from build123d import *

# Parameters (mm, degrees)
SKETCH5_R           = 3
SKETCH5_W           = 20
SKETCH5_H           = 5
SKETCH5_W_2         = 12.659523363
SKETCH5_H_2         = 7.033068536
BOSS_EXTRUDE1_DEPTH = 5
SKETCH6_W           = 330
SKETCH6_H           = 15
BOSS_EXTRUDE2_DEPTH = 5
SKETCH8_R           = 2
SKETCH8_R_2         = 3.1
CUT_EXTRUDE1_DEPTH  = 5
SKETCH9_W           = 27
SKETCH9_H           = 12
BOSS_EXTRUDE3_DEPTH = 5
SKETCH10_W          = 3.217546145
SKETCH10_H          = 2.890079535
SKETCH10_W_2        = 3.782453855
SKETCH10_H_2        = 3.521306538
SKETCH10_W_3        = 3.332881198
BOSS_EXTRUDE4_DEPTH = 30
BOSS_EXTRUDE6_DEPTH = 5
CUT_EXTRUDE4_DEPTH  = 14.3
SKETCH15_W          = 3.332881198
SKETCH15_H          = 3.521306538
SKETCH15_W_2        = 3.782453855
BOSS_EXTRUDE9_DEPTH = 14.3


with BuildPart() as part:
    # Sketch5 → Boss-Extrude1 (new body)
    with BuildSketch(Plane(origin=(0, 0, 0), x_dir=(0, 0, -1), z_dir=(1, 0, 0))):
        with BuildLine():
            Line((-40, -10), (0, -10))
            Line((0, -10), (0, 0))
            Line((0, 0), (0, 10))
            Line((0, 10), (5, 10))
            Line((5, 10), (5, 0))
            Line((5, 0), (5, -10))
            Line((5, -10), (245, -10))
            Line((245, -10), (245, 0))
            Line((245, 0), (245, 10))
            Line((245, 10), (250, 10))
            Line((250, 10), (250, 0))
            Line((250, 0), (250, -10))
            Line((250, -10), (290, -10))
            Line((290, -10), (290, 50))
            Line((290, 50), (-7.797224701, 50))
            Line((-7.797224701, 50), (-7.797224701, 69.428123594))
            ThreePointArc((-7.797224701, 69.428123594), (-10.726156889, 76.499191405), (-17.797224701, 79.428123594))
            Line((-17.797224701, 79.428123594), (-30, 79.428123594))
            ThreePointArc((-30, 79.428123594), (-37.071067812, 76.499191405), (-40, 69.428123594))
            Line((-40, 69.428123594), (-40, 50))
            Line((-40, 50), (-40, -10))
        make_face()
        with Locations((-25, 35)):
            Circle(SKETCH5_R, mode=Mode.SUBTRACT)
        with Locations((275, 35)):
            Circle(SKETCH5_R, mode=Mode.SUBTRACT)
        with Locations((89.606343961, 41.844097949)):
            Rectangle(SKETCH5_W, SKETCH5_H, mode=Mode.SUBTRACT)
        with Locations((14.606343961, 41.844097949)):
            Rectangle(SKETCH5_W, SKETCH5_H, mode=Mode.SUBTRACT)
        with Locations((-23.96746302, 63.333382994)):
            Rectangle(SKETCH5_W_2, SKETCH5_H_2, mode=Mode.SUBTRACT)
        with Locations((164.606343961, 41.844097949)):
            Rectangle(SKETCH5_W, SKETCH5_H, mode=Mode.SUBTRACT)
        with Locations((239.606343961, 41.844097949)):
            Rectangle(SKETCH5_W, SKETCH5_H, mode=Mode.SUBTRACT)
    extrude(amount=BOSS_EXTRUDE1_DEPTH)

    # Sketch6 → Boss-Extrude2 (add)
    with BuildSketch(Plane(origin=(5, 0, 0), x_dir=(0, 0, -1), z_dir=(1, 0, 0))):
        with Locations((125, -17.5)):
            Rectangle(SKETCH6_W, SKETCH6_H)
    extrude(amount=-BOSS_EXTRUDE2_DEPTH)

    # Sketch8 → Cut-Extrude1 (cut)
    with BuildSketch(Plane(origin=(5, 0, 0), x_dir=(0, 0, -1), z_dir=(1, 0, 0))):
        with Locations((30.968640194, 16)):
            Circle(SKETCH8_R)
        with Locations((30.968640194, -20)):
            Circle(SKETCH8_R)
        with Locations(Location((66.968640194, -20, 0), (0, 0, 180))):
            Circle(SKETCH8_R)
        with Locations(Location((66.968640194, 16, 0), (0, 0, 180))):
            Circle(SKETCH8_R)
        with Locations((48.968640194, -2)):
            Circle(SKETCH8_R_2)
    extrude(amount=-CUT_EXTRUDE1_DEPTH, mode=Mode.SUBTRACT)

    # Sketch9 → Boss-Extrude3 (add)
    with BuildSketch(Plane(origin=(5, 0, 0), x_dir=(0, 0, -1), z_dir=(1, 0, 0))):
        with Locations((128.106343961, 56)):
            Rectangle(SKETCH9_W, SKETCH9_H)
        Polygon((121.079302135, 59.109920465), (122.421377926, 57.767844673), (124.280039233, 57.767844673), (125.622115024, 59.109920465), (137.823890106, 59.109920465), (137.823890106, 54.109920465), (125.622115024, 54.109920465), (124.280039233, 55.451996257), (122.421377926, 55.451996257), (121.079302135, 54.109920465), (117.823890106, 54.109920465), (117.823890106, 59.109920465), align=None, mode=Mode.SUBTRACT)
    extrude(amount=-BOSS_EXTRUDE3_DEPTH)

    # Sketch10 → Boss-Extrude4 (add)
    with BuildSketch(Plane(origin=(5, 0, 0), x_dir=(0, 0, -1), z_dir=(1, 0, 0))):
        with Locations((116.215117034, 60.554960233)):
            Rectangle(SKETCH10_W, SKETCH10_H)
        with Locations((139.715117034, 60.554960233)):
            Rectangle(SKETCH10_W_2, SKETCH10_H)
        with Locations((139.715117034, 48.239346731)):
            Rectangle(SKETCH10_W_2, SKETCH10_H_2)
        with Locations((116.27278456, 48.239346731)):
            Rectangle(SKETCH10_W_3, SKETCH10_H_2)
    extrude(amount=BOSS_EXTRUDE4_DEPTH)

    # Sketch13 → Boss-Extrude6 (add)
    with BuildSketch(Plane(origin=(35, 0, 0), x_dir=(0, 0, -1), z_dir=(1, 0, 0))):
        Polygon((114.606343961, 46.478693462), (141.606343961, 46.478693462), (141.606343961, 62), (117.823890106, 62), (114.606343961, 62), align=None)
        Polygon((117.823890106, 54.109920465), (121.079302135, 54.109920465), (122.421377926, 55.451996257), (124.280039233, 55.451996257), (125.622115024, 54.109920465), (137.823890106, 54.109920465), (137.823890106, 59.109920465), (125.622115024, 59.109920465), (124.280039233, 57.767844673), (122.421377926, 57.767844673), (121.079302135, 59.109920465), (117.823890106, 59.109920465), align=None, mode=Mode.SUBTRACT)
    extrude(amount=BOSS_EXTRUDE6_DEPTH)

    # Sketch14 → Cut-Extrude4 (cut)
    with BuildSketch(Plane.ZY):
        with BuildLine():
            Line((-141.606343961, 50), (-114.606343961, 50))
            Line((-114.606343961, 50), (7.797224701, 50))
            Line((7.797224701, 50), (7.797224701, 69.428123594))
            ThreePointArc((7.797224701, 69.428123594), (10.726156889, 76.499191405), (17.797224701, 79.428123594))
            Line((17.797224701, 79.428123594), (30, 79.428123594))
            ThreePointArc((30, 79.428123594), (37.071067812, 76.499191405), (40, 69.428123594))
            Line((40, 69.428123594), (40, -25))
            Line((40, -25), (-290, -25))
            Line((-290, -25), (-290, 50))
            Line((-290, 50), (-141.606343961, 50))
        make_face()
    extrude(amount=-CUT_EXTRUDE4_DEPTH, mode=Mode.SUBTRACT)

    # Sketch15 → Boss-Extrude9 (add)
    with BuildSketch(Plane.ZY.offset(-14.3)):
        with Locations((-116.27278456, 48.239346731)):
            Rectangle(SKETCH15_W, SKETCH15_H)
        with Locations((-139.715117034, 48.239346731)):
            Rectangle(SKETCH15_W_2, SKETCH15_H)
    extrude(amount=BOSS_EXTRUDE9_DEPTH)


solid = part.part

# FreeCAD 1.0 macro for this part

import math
import FreeCAD as App
import Part
import Sketcher
from FreeCAD import Vector

doc = App.newDocument("Part")
body = doc.addObject("PartDesign::Body", "Body")

sketch1 = body.newObject("Sketcher::SketchObject", "Sketch")
sketch1.AttachmentSupport = (doc.getObject("YZ_Plane"), [""])
sketch1.MapMode = "FlatFace"
sketch1.addGeometry([
    Part.LineSegment(Vector(-10, 40, 0), Vector(-10, 0, 0)),
    Part.LineSegment(Vector(-10, 0, 0), Vector(10, 0, 0)),
    Part.LineSegment(Vector(10, 0, 0), Vector(10, -5, 0)),
    Part.LineSegment(Vector(10, -5, 0), Vector(-10, -5, 0)),
    Part.LineSegment(Vector(-10, -5, 0), Vector(-10, -245, 0)),
    Part.LineSegment(Vector(-10, -245, 0), Vector(10, -245, 0)),
    Part.LineSegment(Vector(10, -245, 0), Vector(10, -250, 0)),
    Part.LineSegment(Vector(10, -250, 0), Vector(-10, -250, 0)),
    Part.LineSegment(Vector(-10, -250, 0), Vector(-10, -290, 0)),
    Part.LineSegment(Vector(-10, -290, 0), Vector(50, -290, 0)),
    Part.LineSegment(Vector(50, -290, 0), Vector(50, 7.8, 0)),
    Part.LineSegment(Vector(50, 7.8, 0), Vector(69.4, 7.8, 0)),
    Part.ArcOfCircle(Part.Circle(Vector(69.4, 17.8, 0), Vector(0, 0, 1), 10), math.radians(-90), math.radians(0)),
    Part.LineSegment(Vector(79.4, 17.8, 0), Vector(79.4, 30, 0)),
    Part.ArcOfCircle(Part.Circle(Vector(69.4, 30, 0), Vector(0, 0, 1), 10), math.radians(0), math.radians(90)),
    Part.LineSegment(Vector(69.4, 40, 0), Vector(-10, 40, 0)),
    Part.Circle(Vector(35, 25, 0), Vector(0, 0, 1), 3),
    Part.LineSegment(Vector(39.3, -24.6, 0), Vector(39.3, -4.6, 0)),
    Part.LineSegment(Vector(39.3, -4.6, 0), Vector(44.3, -4.6, 0)),
    Part.LineSegment(Vector(44.3, -4.6, 0), Vector(44.3, -24.6, 0)),
    Part.LineSegment(Vector(44.3, -24.6, 0), Vector(39.3, -24.6, 0)),
    Part.LineSegment(Vector(39.3, -99.6, 0), Vector(39.3, -79.6, 0)),
    Part.LineSegment(Vector(39.3, -79.6, 0), Vector(44.3, -79.6, 0)),
    Part.LineSegment(Vector(44.3, -79.6, 0), Vector(44.3, -99.6, 0)),
    Part.LineSegment(Vector(44.3, -99.6, 0), Vector(39.3, -99.6, 0)),
    Part.Circle(Vector(35, -275, 0), Vector(0, 0, 1), 3),
    Part.LineSegment(Vector(39.3, -174.6, 0), Vector(39.3, -154.6, 0)),
    Part.LineSegment(Vector(39.3, -154.6, 0), Vector(44.3, -154.6, 0)),
    Part.LineSegment(Vector(44.3, -154.6, 0), Vector(44.3, -174.6, 0)),
    Part.LineSegment(Vector(44.3, -174.6, 0), Vector(39.3, -174.6, 0)),
    Part.LineSegment(Vector(39.3, -249.6, 0), Vector(39.3, -229.6, 0)),
    Part.LineSegment(Vector(39.3, -229.6, 0), Vector(44.3, -229.6, 0)),
    Part.LineSegment(Vector(44.3, -229.6, 0), Vector(44.3, -249.6, 0)),
    Part.LineSegment(Vector(44.3, -249.6, 0), Vector(39.3, -249.6, 0)),
    Part.LineSegment(Vector(59.8, 17.6, 0), Vector(59.8, 30.3, 0)),
    Part.LineSegment(Vector(59.8, 30.3, 0), Vector(66.8, 30.3, 0)),
    Part.LineSegment(Vector(66.8, 30.3, 0), Vector(66.8, 17.6, 0)),
    Part.LineSegment(Vector(66.8, 17.6, 0), Vector(59.8, 17.6, 0)),
], False)
sketch1.addConstraint([
    Sketcher.Constraint("Coincident", 0, 2, 1, 1),
    Sketcher.Constraint("Coincident", 1, 2, 2, 1),
    Sketcher.Constraint("Coincident", 2, 2, 3, 1),
    Sketcher.Constraint("Coincident", 3, 2, 4, 1),
    Sketcher.Constraint("Coincident", 4, 2, 5, 1),
    Sketcher.Constraint("Coincident", 5, 2, 6, 1),
    Sketcher.Constraint("Coincident", 6, 2, 7, 1),
    Sketcher.Constraint("Coincident", 7, 2, 8, 1),
    Sketcher.Constraint("Coincident", 8, 2, 9, 1),
    Sketcher.Constraint("Coincident", 9, 2, 10, 1),
    Sketcher.Constraint("Coincident", 10, 2, 11, 1),
    Sketcher.Constraint("Tangent", 11, 2, 12, 1),
    Sketcher.Constraint("Tangent", 12, 2, 13, 1),
    Sketcher.Constraint("Tangent", 13, 2, 14, 1),
    Sketcher.Constraint("Tangent", 14, 2, 15, 1),
    Sketcher.Constraint("Coincident", 15, 2, 0, 1),
    Sketcher.Constraint("Coincident", 17, 2, 18, 1),
    Sketcher.Constraint("Coincident", 18, 2, 19, 1),
    Sketcher.Constraint("Coincident", 19, 2, 20, 1),
    Sketcher.Constraint("Coincident", 20, 2, 17, 1),
    Sketcher.Constraint("Coincident", 21, 2, 22, 1),
    Sketcher.Constraint("Coincident", 22, 2, 23, 1),
    Sketcher.Constraint("Coincident", 23, 2, 24, 1),
    Sketcher.Constraint("Coincident", 24, 2, 21, 1),
    Sketcher.Constraint("Coincident", 26, 2, 27, 1),
    Sketcher.Constraint("Coincident", 27, 2, 28, 1),
    Sketcher.Constraint("Coincident", 28, 2, 29, 1),
    Sketcher.Constraint("Coincident", 29, 2, 26, 1),
    Sketcher.Constraint("Coincident", 30, 2, 31, 1),
    Sketcher.Constraint("Coincident", 31, 2, 32, 1),
    Sketcher.Constraint("Coincident", 32, 2, 33, 1),
    Sketcher.Constraint("Coincident", 33, 2, 30, 1),
    Sketcher.Constraint("Coincident", 34, 2, 35, 1),
    Sketcher.Constraint("Coincident", 35, 2, 36, 1),
    Sketcher.Constraint("Coincident", 36, 2, 37, 1),
    Sketcher.Constraint("Coincident", 37, 2, 34, 1),
    Sketcher.Constraint("Vertical", 0),
    Sketcher.Constraint("Horizontal", 1),
    Sketcher.Constraint("Vertical", 2),
    Sketcher.Constraint("Horizontal", 3),
    Sketcher.Constraint("Vertical", 4),
    Sketcher.Constraint("Horizontal", 5),
    Sketcher.Constraint("Vertical", 6),
    Sketcher.Constraint("Horizontal", 7),
    Sketcher.Constraint("Vertical", 8),
    Sketcher.Constraint("Horizontal", 9),
    Sketcher.Constraint("Vertical", 10),
    Sketcher.Constraint("Horizontal", 11),
    Sketcher.Constraint("Vertical", 13),
    Sketcher.Constraint("Horizontal", 15),
    Sketcher.Constraint("Vertical", 17),
    Sketcher.Constraint("Horizontal", 18),
    Sketcher.Constraint("Vertical", 19),
    Sketcher.Constraint("Horizontal", 20),
    Sketcher.Constraint("Vertical", 21),
    Sketcher.Constraint("Horizontal", 22),
    Sketcher.Constraint("Vertical", 23),
    Sketcher.Constraint("Horizontal", 24),
    Sketcher.Constraint("Vertical", 26),
    Sketcher.Constraint("Horizontal", 27),
    Sketcher.Constraint("Vertical", 28),
    Sketcher.Constraint("Horizontal", 29),
    Sketcher.Constraint("Vertical", 30),
    Sketcher.Constraint("Horizontal", 31),
    Sketcher.Constraint("Vertical", 32),
    Sketcher.Constraint("Horizontal", 33),
    Sketcher.Constraint("Vertical", 34),
    Sketcher.Constraint("Horizontal", 35),
    Sketcher.Constraint("Vertical", 36),
    Sketcher.Constraint("Horizontal", 37),
    Sketcher.Constraint("Equal", 12, 14),
    Sketcher.Constraint("Equal", 16, 25),
    Sketcher.Constraint("Symmetric", 0, 2, 1, 2, -1, 1),
    Sketcher.Constraint("Vertical", 16, 3, 25, 3),
    Sketcher.Constraint("Vertical", 0, 2, 3, 2),
    Sketcher.Constraint("Vertical", 2, 2, 5, 2),
    Sketcher.Constraint("Vertical", 4, 2, 7, 2),
    Sketcher.Constraint("Vertical", 20, 2, 21, 2),
    Sketcher.Constraint("Vertical", 19, 2, 22, 2),
    Sketcher.Constraint("Vertical", 24, 2, 26, 2),
    Sketcher.Constraint("Vertical", 23, 2, 27, 2),
    Sketcher.Constraint("Vertical", 29, 2, 30, 2),
    Sketcher.Constraint("Vertical", 28, 2, 31, 2),
    Sketcher.Constraint("Equal", 33, 2),
    Sketcher.Constraint("Equal", 2, 6),
    Sketcher.Constraint("Equal", 0, 8),
    Sketcher.Constraint("Equal", 7, 17),
    Sketcher.Constraint("Equal", 19, 21),
    Sketcher.Constraint("Equal", 23, 26),
    Sketcher.Constraint("Equal", 28, 30),
    Sketcher.Constraint("Diameter", 16, 6.0),
    Sketcher.Constraint("Radius", 12, 10.0),
    Sketcher.Constraint("DistanceX", 1, 1, 1, 2, 20.0),
    Sketcher.Constraint("DistanceX", 9, 1, 9, 2, 60.0),
    Sketcher.Constraint("DistanceX", 18, 1, 18, 2, 5.0),
    Sketcher.Constraint("DistanceY", 0, 2, 0, 1, 40.0),
    Sketcher.Constraint("DistanceY", 4, 2, 4, 1, 240.0),
    Sketcher.Constraint("DistanceX", -1, 1, 16, 3, 35.0),
    Sketcher.Constraint("DistanceY", -1, 1, 16, 3, 25.0),
    Sketcher.Constraint("DistanceY", 25, 3, -1, 1, 275.0),
    Sketcher.Constraint("DistanceY", 21, 2, 20, 2, 55.0),
    Sketcher.Constraint("DistanceY", 26, 2, 24, 2, 55.0),
    Sketcher.Constraint("DistanceY", 31, 2, 28, 2, 55.0),
    Sketcher.Constraint("DistanceY", 12, 3, 34, 2, 12.5),
    Sketcher.Constraint("DistanceX", 35, 1, 35, 2, 7.033069),
    Sketcher.Constraint("DistanceY", -1, 1, 36, 2, 17.637701),
    Sketcher.Constraint("DistanceX", 11, 1, 11, 2, 19.428124),
    Sketcher.Constraint("DistanceY", 10, 1, 10, 2, 297.797225),
    Sketcher.Constraint("DistanceX", -1, 1, 34, 2, 59.816849),
    Sketcher.Constraint("DistanceY", 17, 2, 10, 2, 12.403569),
    Sketcher.Constraint("DistanceX", -1, 1, 17, 2, 39.344098),
])
pad1 = body.newObject("PartDesign::Pad", "Pad")
pad1.Profile = sketch1
pad1.Length = 5

sketch2 = body.newObject("Sketcher::SketchObject", "Sketch001")
sketch2.AttachmentSupport = (doc.getObject("YZ_Plane"), [""])
sketch2.MapMode = "FlatFace"
sketch2.AttachmentOffset = App.Placement(Vector(0, 0, 5), App.Rotation())
sketch2.addGeometry([
    Part.LineSegment(Vector(-10, 40, 0), Vector(-25, 40, 0)),
    Part.LineSegment(Vector(-25, 40, 0), Vector(-25, -290, 0)),
    Part.LineSegment(Vector(-25, -290, 0), Vector(-10, -290, 0)),
    Part.LineSegment(Vector(-10, -290, 0), Vector(-10, 40, 0)),
], False)
sketch2.addConstraint([
    Sketcher.Constraint("Coincident", 0, 2, 1, 1),
    Sketcher.Constraint("Coincident", 1, 2, 2, 1),
    Sketcher.Constraint("Coincident", 2, 2, 3, 1),
    Sketcher.Constraint("Coincident", 3, 2, 0, 1),
    Sketcher.Constraint("Horizontal", 0),
    Sketcher.Constraint("Vertical", 1),
    Sketcher.Constraint("Horizontal", 2),
    Sketcher.Constraint("Vertical", 3),
    Sketcher.Constraint("DistanceX", 0, 2, 0, 1, 15.0),
    Sketcher.Constraint("DistanceY", 1, 2, 1, 1, 330.0),
    Sketcher.Constraint("DistanceX", 0, 2, -1, 1, 25.0),
    Sketcher.Constraint("DistanceY", -1, 1, 0, 2, 40.0),
])
pad2 = body.newObject("PartDesign::Pad", "Pad001")
pad2.Profile = sketch2
pad2.Length = 5
pad2.Reversed = True

sketch3 = body.newObject("Sketcher::SketchObject", "Sketch002")
sketch3.AttachmentSupport = (doc.getObject("YZ_Plane"), [""])
sketch3.MapMode = "FlatFace"
sketch3.AttachmentOffset = App.Placement(Vector(0, 0, 5), App.Rotation())
sketch3.addGeometry([
    Part.Circle(Vector(16, -31, 0), Vector(0, 0, 1), 2),
    Part.Circle(Vector(-20, -31, 0), Vector(0, 0, 1), 2),
    Part.Circle(Vector(-20, -67, 0), Vector(0, 0, 1), 2),
    Part.Circle(Vector(16, -67, 0), Vector(0, 0, 1), 2),
    Part.Circle(Vector(-2, -49, 0), Vector(0, 0, 1), 3.1),
], False)
sketch3.addConstraint([
    Sketcher.Constraint("Equal", 0, 1),
    Sketcher.Constraint("Equal", 1, 2),
    Sketcher.Constraint("Equal", 2, 3),
    Sketcher.Constraint("Horizontal", 0, 3, 1, 3),
    Sketcher.Constraint("Horizontal", 2, 3, 3, 3),
    Sketcher.Constraint("Vertical", 1, 3, 2, 3),
    Sketcher.Constraint("Vertical", 0, 3, 3, 3),
    Sketcher.Constraint("Diameter", 0, 4.0),
    Sketcher.Constraint("Diameter", 4, 6.2),
    Sketcher.Constraint("DistanceX", -1, 1, 0, 3, 16.0),
    Sketcher.Constraint("DistanceX", 1, 3, -1, 1, 20.0),
    Sketcher.Constraint("DistanceX", 4, 3, -1, 1, 2.0),
    Sketcher.Constraint("DistanceY", 2, 3, 1, 3, 36.0),
    Sketcher.Constraint("DistanceY", 2, 3, 4, 3, 18.0),
    Sketcher.Constraint("DistanceY", 0, 3, -1, 1, 30.96864),
])
pocket1 = body.newObject("PartDesign::Pocket", "Pocket")
pocket1.Profile = sketch3
pocket1.Length = 5

sketch4 = body.newObject("Sketcher::SketchObject", "Sketch003")
sketch4.AttachmentSupport = (doc.getObject("YZ_Plane"), [""])
sketch4.MapMode = "FlatFace"
sketch4.AttachmentOffset = App.Placement(Vector(0, 0, 5), App.Rotation())
sketch4.addGeometry([
    Part.LineSegment(Vector(62, -114.6, 0), Vector(50, -114.6, 0)),
    Part.LineSegment(Vector(50, -114.6, 0), Vector(50, -141.6, 0)),
    Part.LineSegment(Vector(50, -141.6, 0), Vector(62, -141.6, 0)),
    Part.LineSegment(Vector(62, -141.6, 0), Vector(62, -114.6, 0)),
    Part.LineSegment(Vector(59.1, -117.8, 0), Vector(59.1, -121.1, 0)),
    Part.LineSegment(Vector(59.1, -121.1, 0), Vector(57.8, -122.4, 0)),
    Part.LineSegment(Vector(57.8, -122.4, 0), Vector(57.8, -124.3, 0)),
    Part.LineSegment(Vector(57.8, -124.3, 0), Vector(59.1, -125.6, 0)),
    Part.LineSegment(Vector(59.1, -125.6, 0), Vector(59.1, -137.8, 0)),
    Part.LineSegment(Vector(59.1, -137.8, 0), Vector(54.1, -137.8, 0)),
    Part.LineSegment(Vector(54.1, -137.8, 0), Vector(54.1, -125.6, 0)),
    Part.LineSegment(Vector(54.1, -125.6, 0), Vector(55.5, -124.3, 0)),
    Part.LineSegment(Vector(55.5, -124.3, 0), Vector(55.5, -122.4, 0)),
    Part.LineSegment(Vector(55.5, -122.4, 0), Vector(54.1, -121.1, 0)),
    Part.LineSegment(Vector(54.1, -121.1, 0), Vector(54.1, -117.8, 0)),
    Part.LineSegment(Vector(54.1, -117.8, 0), Vector(59.1, -117.8, 0)),
], False)
sketch4.addConstraint([
    Sketcher.Constraint("Coincident", 0, 2, 1, 1),
    Sketcher.Constraint("Coincident", 1, 2, 2, 1),
    Sketcher.Constraint("Coincident", 2, 2, 3, 1),
    Sketcher.Constraint("Coincident", 3, 2, 0, 1),
    Sketcher.Constraint("Coincident", 4, 2, 5, 1),
    Sketcher.Constraint("Coincident", 5, 2, 6, 1),
    Sketcher.Constraint("Coincident", 6, 2, 7, 1),
    Sketcher.Constraint("Coincident", 7, 2, 8, 1),
    Sketcher.Constraint("Coincident", 8, 2, 9, 1),
    Sketcher.Constraint("Coincident", 9, 2, 10, 1),
    Sketcher.Constraint("Coincident", 10, 2, 11, 1),
    Sketcher.Constraint("Coincident", 11, 2, 12, 1),
    Sketcher.Constraint("Coincident", 12, 2, 13, 1),
    Sketcher.Constraint("Coincident", 13, 2, 14, 1),
    Sketcher.Constraint("Coincident", 14, 2, 15, 1),
    Sketcher.Constraint("Coincident", 15, 2, 4, 1),
    Sketcher.Constraint("Horizontal", 0),
    Sketcher.Constraint("Vertical", 1),
    Sketcher.Constraint("Horizontal", 2),
    Sketcher.Constraint("Vertical", 3),
    Sketcher.Constraint("Vertical", 4),
    Sketcher.Constraint("Vertical", 6),
    Sketcher.Constraint("Vertical", 8),
    Sketcher.Constraint("Horizontal", 9),
    Sketcher.Constraint("Vertical", 10),
    Sketcher.Constraint("Vertical", 12),
    Sketcher.Constraint("Vertical", 14),
    Sketcher.Constraint("Horizontal", 15),
    Sketcher.Constraint("Perpendicular", 5, 7),
    Sketcher.Constraint("Perpendicular", 7, 11),
    Sketcher.Constraint("Perpendicular", 11, 13),
    Sketcher.Constraint("Horizontal", 7, 2, 10, 2),
    Sketcher.Constraint("Horizontal", 6, 2, 11, 2),
    Sketcher.Constraint("Horizontal", 5, 2, 12, 2),
    Sketcher.Constraint("Horizontal", 4, 2, 13, 2),
    Sketcher.Constraint("Vertical", 4, 2, 7, 2),
    Sketcher.Constraint("Vertical", 10, 2, 13, 2),
    Sketcher.Constraint("DistanceX", 0, 2, 0, 1, 12.0),
    Sketcher.Constraint("DistanceX", 9, 2, 9, 1, 5.0),
    Sketcher.Constraint("DistanceY", 1, 2, 1, 1, 27.0),
    Sketcher.Constraint("DistanceX", -1, 1, 0, 2, 50.0),
    Sketcher.Constraint("DistanceY", 6, 2, 6, 1, 1.858661),
    Sketcher.Constraint("Distance", 5, 1.897982),
    Sketcher.Constraint("DistanceY", 4, 2, 4, 1, 3.255412),
    Sketcher.Constraint("DistanceY", 8, 2, 8, 1, 12.201775),
    Sketcher.Constraint("DistanceX", -1, 1, 4, 2, 59.10992),
    Sketcher.Constraint("DistanceY", 6, 2, -1, 1, 124.280039),
    Sketcher.Constraint("DistanceY", 4, 2, 3, 2, 6.472958),
])
pad3 = body.newObject("PartDesign::Pad", "Pad002")
pad3.Profile = sketch4
pad3.Length = 5
pad3.Reversed = True

sketch5 = body.newObject("Sketcher::SketchObject", "Sketch004")
sketch5.AttachmentSupport = (doc.getObject("YZ_Plane"), [""])
sketch5.MapMode = "FlatFace"
sketch5.AttachmentOffset = App.Placement(Vector(0, 0, 5), App.Rotation())
sketch5.addGeometry([
    Part.LineSegment(Vector(62, -114.6, 0), Vector(59.1, -114.6, 0)),
    Part.LineSegment(Vector(59.1, -114.6, 0), Vector(59.1, -117.8, 0)),
    Part.LineSegment(Vector(59.1, -117.8, 0), Vector(62, -117.8, 0)),
    Part.LineSegment(Vector(62, -117.8, 0), Vector(62, -114.6, 0)),
    Part.LineSegment(Vector(62, -137.8, 0), Vector(59.1, -137.8, 0)),
    Part.LineSegment(Vector(59.1, -137.8, 0), Vector(59.1, -141.6, 0)),
    Part.LineSegment(Vector(59.1, -141.6, 0), Vector(62, -141.6, 0)),
    Part.LineSegment(Vector(62, -141.6, 0), Vector(62, -137.8, 0)),
    Part.LineSegment(Vector(50, -137.8, 0), Vector(46.5, -137.8, 0)),
    Part.LineSegment(Vector(46.5, -137.8, 0), Vector(46.5, -141.6, 0)),
    Part.LineSegment(Vector(46.5, -141.6, 0), Vector(50, -141.6, 0)),
    Part.LineSegment(Vector(50, -141.6, 0), Vector(50, -137.8, 0)),
    Part.LineSegment(Vector(50, -114.6, 0), Vector(46.5, -114.6, 0)),
    Part.LineSegment(Vector(46.5, -114.6, 0), Vector(46.5, -117.9, 0)),
    Part.LineSegment(Vector(46.5, -117.9, 0), Vector(50, -117.9, 0)),
    Part.LineSegment(Vector(50, -117.9, 0), Vector(50, -114.6, 0)),
], False)
sketch5.addConstraint([
    Sketcher.Constraint("Coincident", 0, 2, 1, 1),
    Sketcher.Constraint("Coincident", 1, 2, 2, 1),
    Sketcher.Constraint("Coincident", 2, 2, 3, 1),
    Sketcher.Constraint("Coincident", 3, 2, 0, 1),
    Sketcher.Constraint("Coincident", 4, 2, 5, 1),
    Sketcher.Constraint("Coincident", 5, 2, 6, 1),
    Sketcher.Constraint("Coincident", 6, 2, 7, 1),
    Sketcher.Constraint("Coincident", 7, 2, 4, 1),
    Sketcher.Constraint("Coincident", 8, 2, 9, 1),
    Sketcher.Constraint("Coincident", 9, 2, 10, 1),
    Sketcher.Constraint("Coincident", 10, 2, 11, 1),
    Sketcher.Constraint("Coincident", 11, 2, 8, 1),
    Sketcher.Constraint("Coincident", 12, 2, 13, 1),
    Sketcher.Constraint("Coincident", 13, 2, 14, 1),
    Sketcher.Constraint("Coincident", 14, 2, 15, 1),
    Sketcher.Constraint("Coincident", 15, 2, 12, 1),
    Sketcher.Constraint("Horizontal", 0),
    Sketcher.Constraint("Vertical", 1),
    Sketcher.Constraint("Horizontal", 2),
    Sketcher.Constraint("Vertical", 3),
    Sketcher.Constraint("Horizontal", 4),
    Sketcher.Constraint("Vertical", 5),
    Sketcher.Constraint("Horizontal", 6),
    Sketcher.Constraint("Vertical", 7),
    Sketcher.Constraint("Horizontal", 8),
    Sketcher.Constraint("Vertical", 9),
    Sketcher.Constraint("Horizontal", 10),
    Sketcher.Constraint("Vertical", 11),
    Sketcher.Constraint("Horizontal", 12),
    Sketcher.Constraint("Vertical", 13),
    Sketcher.Constraint("Horizontal", 14),
    Sketcher.Constraint("Vertical", 15),
    Sketcher.Constraint("Horizontal", 7, 2, 8, 2),
    Sketcher.Constraint("Horizontal", 6, 2, 9, 2),
    Sketcher.Constraint("Horizontal", 3, 2, 12, 2),
    Sketcher.Constraint("Vertical", 1, 2, 4, 2),
    Sketcher.Constraint("Vertical", 3, 2, 6, 2),
    Sketcher.Constraint("Vertical", 9, 2, 12, 2),
    Sketcher.Constraint("Vertical", 11, 2, 14, 2),
    Sketcher.Constraint("DistanceX", -1, 1, 2, 2, 62.0),
    Sketcher.Constraint("DistanceX", -1, 1, 10, 2, 50.0),
    Sketcher.Constraint("DistanceY", 4, 2, 1, 2, 20.0),
    Sketcher.Constraint("DistanceY", 5, 2, 0, 2, 27.0),
    Sketcher.Constraint("DistanceX", 0, 2, 0, 1, 2.89008),
    Sketcher.Constraint("DistanceY", 13, 2, 13, 1, 3.332881),
    Sketcher.Constraint("DistanceX", 8, 2, 8, 1, 3.521307),
    Sketcher.Constraint("DistanceY", 1, 2, 1, 1, 3.217546),
    Sketcher.Constraint("DistanceY", 1, 2, -1, 1, 117.82389),
])
pad4 = body.newObject("PartDesign::Pad", "Pad003")
pad4.Profile = sketch5
pad4.Length = 30

sketch6 = body.newObject("Sketcher::SketchObject", "Sketch005")
sketch6.AttachmentSupport = (doc.getObject("YZ_Plane"), [""])
sketch6.MapMode = "FlatFace"
sketch6.AttachmentOffset = App.Placement(Vector(0, 0, 35), App.Rotation())
sketch6.addGeometry([
    Part.LineSegment(Vector(46.5, -114.6, 0), Vector(46.5, -141.6, 0)),
    Part.LineSegment(Vector(46.5, -141.6, 0), Vector(62, -141.6, 0)),
    Part.LineSegment(Vector(62, -141.6, 0), Vector(62, -114.6, 0)),
    Part.LineSegment(Vector(62, -114.6, 0), Vector(46.5, -114.6, 0)),
    Part.LineSegment(Vector(54.1, -121.1, 0), Vector(54.1, -117.8, 0)),
    Part.LineSegment(Vector(54.1, -117.8, 0), Vector(59.1, -117.8, 0)),
    Part.LineSegment(Vector(59.1, -117.8, 0), Vector(59.1, -121.1, 0)),
    Part.LineSegment(Vector(59.1, -121.1, 0), Vector(57.8, -122.4, 0)),
    Part.LineSegment(Vector(57.8, -122.4, 0), Vector(57.8, -124.3, 0)),
    Part.LineSegment(Vector(57.8, -124.3, 0), Vector(59.1, -125.6, 0)),
    Part.LineSegment(Vector(59.1, -125.6, 0), Vector(59.1, -137.8, 0)),
    Part.LineSegment(Vector(59.1, -137.8, 0), Vector(54.1, -137.8, 0)),
    Part.LineSegment(Vector(54.1, -137.8, 0), Vector(54.1, -125.6, 0)),
    Part.LineSegment(Vector(54.1, -125.6, 0), Vector(55.5, -124.3, 0)),
    Part.LineSegment(Vector(55.5, -124.3, 0), Vector(55.5, -122.4, 0)),
    Part.LineSegment(Vector(55.5, -122.4, 0), Vector(54.1, -121.1, 0)),
], False)
sketch6.addConstraint([
    Sketcher.Constraint("Coincident", 0, 2, 1, 1),
    Sketcher.Constraint("Coincident", 1, 2, 2, 1),
    Sketcher.Constraint("Coincident", 2, 2, 3, 1),
    Sketcher.Constraint("Coincident", 3, 2, 0, 1),
    Sketcher.Constraint("Coincident", 4, 2, 5, 1),
    Sketcher.Constraint("Coincident", 5, 2, 6, 1),
    Sketcher.Constraint("Coincident", 6, 2, 7, 1),
    Sketcher.Constraint("Coincident", 7, 2, 8, 1),
    Sketcher.Constraint("Coincident", 8, 2, 9, 1),
    Sketcher.Constraint("Coincident", 9, 2, 10, 1),
    Sketcher.Constraint("Coincident", 10, 2, 11, 1),
    Sketcher.Constraint("Coincident", 11, 2, 12, 1),
    Sketcher.Constraint("Coincident", 12, 2, 13, 1),
    Sketcher.Constraint("Coincident", 13, 2, 14, 1),
    Sketcher.Constraint("Coincident", 14, 2, 15, 1),
    Sketcher.Constraint("Coincident", 15, 2, 4, 1),
    Sketcher.Constraint("Vertical", 0),
    Sketcher.Constraint("Horizontal", 1),
    Sketcher.Constraint("Vertical", 2),
    Sketcher.Constraint("Horizontal", 3),
    Sketcher.Constraint("Vertical", 4),
    Sketcher.Constraint("Horizontal", 5),
    Sketcher.Constraint("Vertical", 6),
    Sketcher.Constraint("Vertical", 8),
    Sketcher.Constraint("Vertical", 10),
    Sketcher.Constraint("Horizontal", 11),
    Sketcher.Constraint("Vertical", 12),
    Sketcher.Constraint("Vertical", 14),
    Sketcher.Constraint("Perpendicular", 7, 9),
    Sketcher.Constraint("Perpendicular", 9, 13),
    Sketcher.Constraint("Perpendicular", 13, 15),
    Sketcher.Constraint("Horizontal", 9, 2, 12, 2),
    Sketcher.Constraint("Horizontal", 8, 2, 13, 2),
    Sketcher.Constraint("Horizontal", 7, 2, 14, 2),
    Sketcher.Constraint("Horizontal", 6, 2, 15, 2),
    Sketcher.Constraint("Vertical", 6, 2, 9, 2),
    Sketcher.Constraint("Vertical", 4, 2, 11, 2),
    Sketcher.Constraint("DistanceX", 5, 1, 5, 2, 5.0),
    Sketcher.Constraint("DistanceY", 0, 2, 0, 1, 27.0),
    Sketcher.Constraint("DistanceX", -1, 1, 1, 2, 62.0),
    Sketcher.Constraint("DistanceY", 8, 2, 8, 1, 1.858661),
    Sketcher.Constraint("Distance", 7, 1.897982),
    Sketcher.Constraint("DistanceX", 1, 1, 1, 2, 15.521307),
    Sketcher.Constraint("DistanceY", 4, 1, 4, 2, 3.255412),
    Sketcher.Constraint("DistanceY", 10, 2, 10, 1, 12.201775),
    Sketcher.Constraint("DistanceX", -1, 1, 4, 2, 54.10992),
    Sketcher.Constraint("DistanceY", 4, 2, -1, 1, 117.82389),
    Sketcher.Constraint("DistanceY", 6, 2, 2, 2, 6.472958),
])
pad5 = body.newObject("PartDesign::Pad", "Pad004")
pad5.Profile = sketch6
pad5.Length = 5

sketch7 = body.newObject("Sketcher::SketchObject", "Sketch006")
sketch7.AttachmentSupport = (doc.getObject("YZ_Plane"), [""])
sketch7.MapMode = "FlatFace"
sketch7.addGeometry([
    Part.LineSegment(Vector(69, 8, 0), Vector(50, 8, 0)),
    Part.LineSegment(Vector(50, 8, 0), Vector(50, -290, 0)),
    Part.LineSegment(Vector(50, -290, 0), Vector(-25, -290, 0)),
    Part.LineSegment(Vector(-25, -290, 0), Vector(-25, 40, 0)),
    Part.LineSegment(Vector(-25, 40, 0), Vector(69, 40, 0)),
    Part.ArcOfCircle(Part.Circle(Vector(69, 30, 0), Vector(0, 0, 1), 10), math.radians(0), math.radians(90)),
    Part.LineSegment(Vector(79, 30, 0), Vector(79, 18, 0)),
    Part.ArcOfCircle(Part.Circle(Vector(69, 18, 0), Vector(0, 0, 1), 10), math.radians(-90), math.radians(0)),
], False)
sketch7.addConstraint([
    Sketcher.Constraint("Coincident", 0, 2, 1, 1),
    Sketcher.Constraint("Coincident", 1, 2, 2, 1),
    Sketcher.Constraint("Coincident", 2, 2, 3, 1),
    Sketcher.Constraint("Coincident", 3, 2, 4, 1),
    Sketcher.Constraint("Tangent", 4, 2, 5, 2),
    Sketcher.Constraint("Tangent", 5, 1, 6, 1),
    Sketcher.Constraint("Tangent", 6, 2, 7, 2),
    Sketcher.Constraint("Tangent", 7, 1, 0, 1),
    Sketcher.Constraint("Horizontal", 0),
    Sketcher.Constraint("Vertical", 1),
    Sketcher.Constraint("Horizontal", 2),
    Sketcher.Constraint("Vertical", 3),
    Sketcher.Constraint("Horizontal", 4),
    Sketcher.Constraint("Vertical", 6),
    Sketcher.Constraint("Equal", 5, 7),
    Sketcher.Constraint("Radius", 5, 10.0),
    Sketcher.Constraint("DistanceX", 2, 2, 2, 1, 75.0),
    Sketcher.Constraint("DistanceY", 3, 1, 3, 2, 330.0),
    Sketcher.Constraint("DistanceY", -1, 1, 5, 3, 30.0),
    Sketcher.Constraint("DistanceX", -1, 1, 0, 2, 50.0),
    Sketcher.Constraint("DistanceX", 0, 2, 0, 1, 19.428124),
    Sketcher.Constraint("DistanceY", 1, 2, 1, 1, 297.797225),
])
pocket2 = body.newObject("PartDesign::Pocket", "Pocket001")
pocket2.Profile = sketch7
pocket2.Length = 14.3
pocket2.Reversed = True

sketch8 = body.newObject("Sketcher::SketchObject", "Sketch007")
sketch8.AttachmentSupport = (doc.getObject("YZ_Plane"), [""])
sketch8.MapMode = "FlatFace"
sketch8.AttachmentOffset = App.Placement(Vector(0, 0, 14.3), App.Rotation())
sketch8.addGeometry([
    Part.LineSegment(Vector(50, -117.9, 0), Vector(46.5, -117.9, 0)),
    Part.LineSegment(Vector(46.5, -117.9, 0), Vector(46.5, -114.6, 0)),
    Part.LineSegment(Vector(46.5, -114.6, 0), Vector(50, -114.6, 0)),
    Part.LineSegment(Vector(50, -114.6, 0), Vector(50, -117.9, 0)),
    Part.LineSegment(Vector(50, -141.6, 0), Vector(46.5, -141.6, 0)),
    Part.LineSegment(Vector(46.5, -141.6, 0), Vector(46.5, -137.8, 0)),
    Part.LineSegment(Vector(46.5, -137.8, 0), Vector(50, -137.8, 0)),
    Part.LineSegment(Vector(50, -137.8, 0), Vector(50, -141.6, 0)),
], False)
sketch8.addConstraint([
    Sketcher.Constraint("Coincident", 0, 2, 1, 1),
    Sketcher.Constraint("Coincident", 1, 2, 2, 1),
    Sketcher.Constraint("Coincident", 2, 2, 3, 1),
    Sketcher.Constraint("Coincident", 3, 2, 0, 1),
    Sketcher.Constraint("Coincident", 4, 2, 5, 1),
    Sketcher.Constraint("Coincident", 5, 2, 6, 1),
    Sketcher.Constraint("Coincident", 6, 2, 7, 1),
    Sketcher.Constraint("Coincident", 7, 2, 4, 1),
    Sketcher.Constraint("Horizontal", 0),
    Sketcher.Constraint("Vertical", 1),
    Sketcher.Constraint("Horizontal", 2),
    Sketcher.Constraint("Vertical", 3),
    Sketcher.Constraint("Horizontal", 4),
    Sketcher.Constraint("Vertical", 5),
    Sketcher.Constraint("Horizontal", 6),
    Sketcher.Constraint("Vertical", 7),
    Sketcher.Constraint("Vertical", 1, 2, 4, 2),
    Sketcher.Constraint("Vertical", 3, 2, 6, 2),
    Sketcher.Constraint("DistanceX", -1, 1, 2, 2, 50.0),
    Sketcher.Constraint("DistanceY", 4, 2, 1, 2, 27.0),
    Sketcher.Constraint("DistanceY", 1, 1, 1, 2, 3.332881),
    Sketcher.Constraint("DistanceX", 0, 2, 0, 1, 3.521307),
    Sketcher.Constraint("DistanceY", 5, 1, 5, 2, 3.782454),
    Sketcher.Constraint("DistanceY", 5, 2, -1, 1, 137.82389),
])
pad6 = body.newObject("PartDesign::Pad", "Pad005")
pad6.Profile = sketch8
pad6.Length = 14.3
pad6.Reversed = True

doc.recompute()
